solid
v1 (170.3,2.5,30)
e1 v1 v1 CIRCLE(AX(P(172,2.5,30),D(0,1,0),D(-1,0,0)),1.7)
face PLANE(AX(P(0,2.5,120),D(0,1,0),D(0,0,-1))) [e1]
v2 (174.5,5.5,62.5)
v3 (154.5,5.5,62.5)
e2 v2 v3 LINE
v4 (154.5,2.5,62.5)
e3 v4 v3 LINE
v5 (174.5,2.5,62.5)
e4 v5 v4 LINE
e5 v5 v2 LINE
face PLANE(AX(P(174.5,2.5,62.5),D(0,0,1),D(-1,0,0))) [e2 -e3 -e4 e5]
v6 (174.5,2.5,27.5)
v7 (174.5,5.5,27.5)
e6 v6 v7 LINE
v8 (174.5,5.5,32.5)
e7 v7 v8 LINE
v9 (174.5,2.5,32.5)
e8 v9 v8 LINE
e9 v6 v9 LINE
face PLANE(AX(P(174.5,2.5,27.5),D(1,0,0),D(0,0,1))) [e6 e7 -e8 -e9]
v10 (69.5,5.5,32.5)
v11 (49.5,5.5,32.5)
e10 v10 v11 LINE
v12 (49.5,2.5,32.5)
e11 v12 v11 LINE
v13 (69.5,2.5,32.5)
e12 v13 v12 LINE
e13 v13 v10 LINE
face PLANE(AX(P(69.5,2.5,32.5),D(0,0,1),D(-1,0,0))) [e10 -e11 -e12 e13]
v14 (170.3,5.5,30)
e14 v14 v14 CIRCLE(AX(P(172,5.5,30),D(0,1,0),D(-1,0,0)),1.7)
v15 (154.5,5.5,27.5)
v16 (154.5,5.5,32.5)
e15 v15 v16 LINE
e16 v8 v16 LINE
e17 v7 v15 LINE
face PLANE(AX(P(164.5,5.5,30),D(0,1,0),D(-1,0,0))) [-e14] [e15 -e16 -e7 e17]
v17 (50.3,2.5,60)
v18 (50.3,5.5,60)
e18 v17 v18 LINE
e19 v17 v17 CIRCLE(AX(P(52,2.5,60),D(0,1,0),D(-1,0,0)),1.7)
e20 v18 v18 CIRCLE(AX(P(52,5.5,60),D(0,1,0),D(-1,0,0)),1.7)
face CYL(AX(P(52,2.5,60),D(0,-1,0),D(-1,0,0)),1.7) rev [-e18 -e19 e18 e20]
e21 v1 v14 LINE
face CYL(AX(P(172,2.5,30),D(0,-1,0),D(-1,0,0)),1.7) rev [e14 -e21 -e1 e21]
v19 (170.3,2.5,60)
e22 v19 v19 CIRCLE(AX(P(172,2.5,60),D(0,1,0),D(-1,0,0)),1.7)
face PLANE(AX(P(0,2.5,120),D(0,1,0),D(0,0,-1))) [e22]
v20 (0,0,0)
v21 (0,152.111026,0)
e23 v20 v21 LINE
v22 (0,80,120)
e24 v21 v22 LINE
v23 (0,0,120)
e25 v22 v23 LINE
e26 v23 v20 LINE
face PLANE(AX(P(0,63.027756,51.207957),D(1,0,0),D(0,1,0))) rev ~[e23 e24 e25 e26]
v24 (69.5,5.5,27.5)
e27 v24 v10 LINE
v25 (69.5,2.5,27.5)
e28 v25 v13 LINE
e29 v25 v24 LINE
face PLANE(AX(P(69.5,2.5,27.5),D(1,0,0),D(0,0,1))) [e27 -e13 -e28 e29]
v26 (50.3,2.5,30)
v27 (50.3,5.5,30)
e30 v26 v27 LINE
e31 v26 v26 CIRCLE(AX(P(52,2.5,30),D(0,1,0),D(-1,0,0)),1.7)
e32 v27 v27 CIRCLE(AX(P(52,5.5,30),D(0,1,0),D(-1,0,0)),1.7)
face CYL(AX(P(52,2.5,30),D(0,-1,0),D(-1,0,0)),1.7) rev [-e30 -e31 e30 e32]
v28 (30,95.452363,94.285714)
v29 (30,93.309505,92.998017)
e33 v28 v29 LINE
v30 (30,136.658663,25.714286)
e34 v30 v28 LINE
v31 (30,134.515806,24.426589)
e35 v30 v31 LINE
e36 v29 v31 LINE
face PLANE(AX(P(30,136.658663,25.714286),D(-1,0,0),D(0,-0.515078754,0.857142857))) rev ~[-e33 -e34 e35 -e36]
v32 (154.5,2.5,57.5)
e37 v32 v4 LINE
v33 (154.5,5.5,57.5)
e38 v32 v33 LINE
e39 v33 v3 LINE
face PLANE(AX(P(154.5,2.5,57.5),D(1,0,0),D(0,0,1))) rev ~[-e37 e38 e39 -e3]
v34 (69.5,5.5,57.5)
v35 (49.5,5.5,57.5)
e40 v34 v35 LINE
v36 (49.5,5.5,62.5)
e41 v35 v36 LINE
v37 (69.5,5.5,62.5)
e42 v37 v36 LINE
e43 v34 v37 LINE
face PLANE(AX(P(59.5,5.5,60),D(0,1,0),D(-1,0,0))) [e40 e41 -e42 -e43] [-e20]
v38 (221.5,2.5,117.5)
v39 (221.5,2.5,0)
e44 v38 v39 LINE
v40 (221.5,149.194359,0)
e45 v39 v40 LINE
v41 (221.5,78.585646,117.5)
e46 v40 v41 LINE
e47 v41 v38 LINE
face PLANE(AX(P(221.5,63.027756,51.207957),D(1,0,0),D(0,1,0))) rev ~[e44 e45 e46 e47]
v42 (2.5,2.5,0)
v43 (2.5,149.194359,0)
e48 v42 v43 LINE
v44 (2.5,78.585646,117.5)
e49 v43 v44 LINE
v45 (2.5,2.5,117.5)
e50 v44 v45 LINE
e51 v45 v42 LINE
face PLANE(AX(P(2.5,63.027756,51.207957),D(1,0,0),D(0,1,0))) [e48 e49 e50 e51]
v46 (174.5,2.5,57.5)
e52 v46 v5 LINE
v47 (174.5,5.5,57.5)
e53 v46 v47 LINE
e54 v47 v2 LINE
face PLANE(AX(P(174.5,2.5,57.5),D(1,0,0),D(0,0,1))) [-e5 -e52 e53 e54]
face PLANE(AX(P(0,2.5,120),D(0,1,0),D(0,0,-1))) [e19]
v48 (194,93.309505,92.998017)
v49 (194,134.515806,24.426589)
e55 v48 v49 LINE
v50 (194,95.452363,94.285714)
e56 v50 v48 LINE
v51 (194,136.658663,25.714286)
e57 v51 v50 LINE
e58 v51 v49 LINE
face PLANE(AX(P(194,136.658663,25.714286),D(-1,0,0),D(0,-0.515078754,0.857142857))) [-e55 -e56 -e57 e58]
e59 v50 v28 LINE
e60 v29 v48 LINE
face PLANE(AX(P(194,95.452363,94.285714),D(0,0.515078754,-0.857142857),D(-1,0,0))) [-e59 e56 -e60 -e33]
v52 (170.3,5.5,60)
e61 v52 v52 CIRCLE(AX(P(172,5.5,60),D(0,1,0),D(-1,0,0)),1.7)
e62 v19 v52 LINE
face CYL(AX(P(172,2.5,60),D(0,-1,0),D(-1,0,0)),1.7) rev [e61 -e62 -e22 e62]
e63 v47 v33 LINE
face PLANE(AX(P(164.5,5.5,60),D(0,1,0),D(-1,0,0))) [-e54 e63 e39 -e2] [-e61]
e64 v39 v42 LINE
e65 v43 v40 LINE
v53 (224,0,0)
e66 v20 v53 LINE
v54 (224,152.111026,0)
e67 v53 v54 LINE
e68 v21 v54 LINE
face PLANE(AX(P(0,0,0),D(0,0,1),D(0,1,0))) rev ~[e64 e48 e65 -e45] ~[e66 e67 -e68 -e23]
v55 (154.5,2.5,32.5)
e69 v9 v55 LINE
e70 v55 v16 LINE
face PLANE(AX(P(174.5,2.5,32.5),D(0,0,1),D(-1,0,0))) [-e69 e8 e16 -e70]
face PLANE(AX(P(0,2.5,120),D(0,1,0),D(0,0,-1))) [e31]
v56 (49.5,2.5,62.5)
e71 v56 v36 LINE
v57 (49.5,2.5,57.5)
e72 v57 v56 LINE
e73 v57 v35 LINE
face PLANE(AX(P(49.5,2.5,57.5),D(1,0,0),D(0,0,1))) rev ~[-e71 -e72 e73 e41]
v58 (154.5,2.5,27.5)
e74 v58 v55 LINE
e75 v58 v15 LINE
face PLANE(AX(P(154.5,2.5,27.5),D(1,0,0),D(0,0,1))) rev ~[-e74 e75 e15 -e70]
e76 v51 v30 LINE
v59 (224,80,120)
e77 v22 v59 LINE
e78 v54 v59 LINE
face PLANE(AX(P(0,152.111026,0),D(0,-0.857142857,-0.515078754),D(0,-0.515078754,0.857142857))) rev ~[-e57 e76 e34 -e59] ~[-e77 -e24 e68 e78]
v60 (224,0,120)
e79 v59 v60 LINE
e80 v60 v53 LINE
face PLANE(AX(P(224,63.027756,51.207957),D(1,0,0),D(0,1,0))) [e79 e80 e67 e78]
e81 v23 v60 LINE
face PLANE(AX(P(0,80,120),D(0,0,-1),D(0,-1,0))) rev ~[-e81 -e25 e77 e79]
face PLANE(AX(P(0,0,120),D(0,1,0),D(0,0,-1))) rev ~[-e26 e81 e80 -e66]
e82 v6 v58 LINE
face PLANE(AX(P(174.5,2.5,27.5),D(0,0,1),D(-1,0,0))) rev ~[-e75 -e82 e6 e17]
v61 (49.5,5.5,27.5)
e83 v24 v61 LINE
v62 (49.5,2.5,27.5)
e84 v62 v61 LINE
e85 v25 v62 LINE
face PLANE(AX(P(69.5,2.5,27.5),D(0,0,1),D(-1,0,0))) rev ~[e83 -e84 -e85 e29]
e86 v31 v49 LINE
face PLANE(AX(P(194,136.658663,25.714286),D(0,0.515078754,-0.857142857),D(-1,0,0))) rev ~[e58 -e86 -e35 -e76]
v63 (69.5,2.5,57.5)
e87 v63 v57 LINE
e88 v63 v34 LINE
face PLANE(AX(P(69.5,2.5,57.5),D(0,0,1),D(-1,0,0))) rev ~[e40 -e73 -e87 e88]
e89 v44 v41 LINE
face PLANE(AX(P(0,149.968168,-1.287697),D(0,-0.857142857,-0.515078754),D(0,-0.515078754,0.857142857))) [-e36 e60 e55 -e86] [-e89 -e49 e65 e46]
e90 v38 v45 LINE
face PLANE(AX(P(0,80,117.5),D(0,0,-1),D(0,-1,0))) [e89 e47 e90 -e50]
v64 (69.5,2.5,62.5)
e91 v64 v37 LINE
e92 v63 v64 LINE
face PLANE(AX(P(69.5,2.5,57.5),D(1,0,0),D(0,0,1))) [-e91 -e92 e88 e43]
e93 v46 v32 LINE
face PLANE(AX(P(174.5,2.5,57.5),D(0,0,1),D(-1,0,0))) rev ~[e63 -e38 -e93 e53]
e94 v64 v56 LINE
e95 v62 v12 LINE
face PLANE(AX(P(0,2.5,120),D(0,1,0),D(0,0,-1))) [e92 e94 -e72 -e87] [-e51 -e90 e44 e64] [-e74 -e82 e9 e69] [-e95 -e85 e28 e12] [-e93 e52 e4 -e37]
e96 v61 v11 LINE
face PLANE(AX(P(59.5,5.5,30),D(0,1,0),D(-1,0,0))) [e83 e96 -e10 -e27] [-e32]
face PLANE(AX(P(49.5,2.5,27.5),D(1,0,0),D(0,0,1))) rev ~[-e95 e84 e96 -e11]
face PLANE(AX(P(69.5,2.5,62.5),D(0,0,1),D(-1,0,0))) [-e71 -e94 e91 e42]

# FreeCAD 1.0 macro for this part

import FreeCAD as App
import Part
import Sketcher

V = App.Vector
Q = App.Units.Quantity


def faces_at(feature, points):
    """Names of the faces that lie closest to the given points."""
    faces = feature.Shape.Faces
    near = lambda p: min(range(len(faces)), key=lambda i: faces[i].distToShape(Part.Vertex(*p))[0])
    return sorted({f"Face{near(p) + 1}" for p in points})


def add_polygon(sketch, points):
    """Adds a closed chain of lines whose ends are joined by coincident constraints."""
    first, n = sketch.GeometryCount, len(points)
    for a, b in zip(points, points[1:] + points[:1]):
        sketch.addGeometry(Part.LineSegment(App.Vector(*a, 0), App.Vector(*b, 0)), False)
    for i in range(n):
        sketch.addConstraint(Sketcher.Constraint("Coincident", first + i, 2, first + (i + 1) % n, 1))

doc = App.newDocument("Part")
body = doc.addObject("PartDesign::Body", "Body")

# Sketch on YZ plane
sketch1 = doc.addObject("Sketcher::SketchObject", "Sketch")
body.addObject(sketch1)
sketch1.AttachmentSupport = (doc.YZ_Plane, [""])
sketch1.MapMode = "FlatFace"
add_polygon(sketch1, [(0, 120), (0, 0), (152, 0), (80, 120)])  # lines 0-3
sketch1.addConstraint(Sketcher.Constraint("Vertical", 0))
sketch1.addConstraint(Sketcher.Constraint("Horizontal", 1))
sketch1.addConstraint(Sketcher.Constraint("Horizontal", 3))
sketch1.addConstraint(Sketcher.Constraint("Coincident", 0, 2, -1, 1))
sketch1.addConstraint(Sketcher.Constraint("DistanceX", 3, 2, 3, 1, Q("80 mm")))
sketch1.addConstraint(Sketcher.Constraint("DistanceY", 0, 2, 0, 1, Q("120 mm")))
sketch1.addConstraint(Sketcher.Constraint("Distance", 2, Q("140 mm")))
pad1 = doc.addObject("PartDesign::Pad", "Pad")
body.addObject(pad1)
pad1.Profile = sketch1
pad1.Length = 224
doc.recompute()

thickness = doc.addObject("PartDesign::Thickness", "Thickness")
body.addObject(thickness)
thickness.Base = (pad1, faces_at(pad1, [(112, 76.056, 0)]))
thickness.Value = 2.5
thickness.Reversed = True
thickness.Join = "Intersection"

# Sketch on an angled plane
sketch2 = doc.addObject("Sketcher::SketchObject", "Sketch001")
body.addObject(sketch2)
sketch2.Placement = App.Placement(V(0, 111.755039, 67.156421), App.Rotation(V(-1, 0, 0), V(0, -0.515078754, 0.857142857), V(0, 0.857142857, 0.515078754), "ZXY"))
add_polygon(sketch2, [(-194, 32), (-194, -48), (-30, -48), (-30, 32)])  # lines 0-3
sketch2.addConstraint(Sketcher.Constraint("Vertical", 0))
sketch2.addConstraint(Sketcher.Constraint("Horizontal", 1))
sketch2.addConstraint(Sketcher.Constraint("Vertical", 2))
sketch2.addConstraint(Sketcher.Constraint("Horizontal", 3))
sketch2.addConstraint(Sketcher.Constraint("DistanceX", 1, 1, 1, 2, Q("164 mm")))
sketch2.addConstraint(Sketcher.Constraint("DistanceY", 0, 2, 0, 1, Q("80 mm")))
sketch2.addConstraint(Sketcher.Constraint("DistanceX", 0, 2, -1, 1, Q("194 mm")))
sketch2.addConstraint(Sketcher.Constraint("DistanceY", 0, 2, -1, 1, Q("48.349157 mm")))
pocket1 = doc.addObject("PartDesign::Pocket", "Pocket")
body.addObject(pocket1)
pocket1.Profile = sketch2
pocket1.Length = 6

# Sketch on XZ plane
sketch3 = doc.addObject("Sketcher::SketchObject", "Sketch002")
body.addObject(sketch3)
sketch3.AttachmentSupport = (doc.XZ_Plane, [""])
sketch3.MapMode = "FlatFace"
sketch3.AttachmentOffset = App.Placement(V(0, 0, -2.5), App.Rotation())
add_polygon(sketch3, [(174.5, 32.5), (174.5, 27.5), (154.5, 27.5), (154.5, 32.5)])  # lines 0-3
sketch3.addGeometry(Part.Circle(V(172, 30, 0), V(0, 0, 1), 1.7), False)  # 4
add_polygon(sketch3, [(174.5, 62.5), (174.5, 57.5), (154.5, 57.5), (154.5, 62.5)])  # lines 5-8
sketch3.addGeometry(Part.Circle(V(172, 60, 0), V(0, 0, 1), 1.7), False)  # 9
add_polygon(sketch3, [(69.5, 32.5), (69.5, 27.5), (49.5, 27.5), (49.5, 32.5)])  # lines 10-13
sketch3.addGeometry(Part.Circle(V(52, 30, 0), V(0, 0, 1), 1.7), False)  # 14
add_polygon(sketch3, [(69.5, 62.5), (69.5, 57.5), (49.5, 57.5), (49.5, 62.5)])  # lines 15-18
sketch3.addGeometry(Part.Circle(V(52, 60, 0), V(0, 0, 1), 1.7), False)  # 19
sketch3.addConstraint(Sketcher.Constraint("Vertical", 0))
sketch3.addConstraint(Sketcher.Constraint("Horizontal", 1))
sketch3.addConstraint(Sketcher.Constraint("Vertical", 2))
sketch3.addConstraint(Sketcher.Constraint("Horizontal", 3))
sketch3.addConstraint(Sketcher.Constraint("Vertical", 5))
sketch3.addConstraint(Sketcher.Constraint("Horizontal", 6))
sketch3.addConstraint(Sketcher.Constraint("Vertical", 7))
sketch3.addConstraint(Sketcher.Constraint("Horizontal", 8))
sketch3.addConstraint(Sketcher.Constraint("Vertical", 10))
sketch3.addConstraint(Sketcher.Constraint("Horizontal", 11))
sketch3.addConstraint(Sketcher.Constraint("Vertical", 12))
sketch3.addConstraint(Sketcher.Constraint("Horizontal", 13))
sketch3.addConstraint(Sketcher.Constraint("Vertical", 15))
sketch3.addConstraint(Sketcher.Constraint("Horizontal", 16))
sketch3.addConstraint(Sketcher.Constraint("Vertical", 17))
sketch3.addConstraint(Sketcher.Constraint("Horizontal", 18))
sketch3.addConstraint(Sketcher.Constraint("Equal", 4, 9))
sketch3.addConstraint(Sketcher.Constraint("Equal", 9, 14))
sketch3.addConstraint(Sketcher.Constraint("Equal", 14, 19))
sketch3.addConstraint(Sketcher.Constraint("Horizontal", 4, 3, 14, 3))
sketch3.addConstraint(Sketcher.Constraint("Horizontal", 9, 3, 19, 3))
sketch3.addConstraint(Sketcher.Constraint("Horizontal", 1, 2, 10, 2))
sketch3.addConstraint(Sketcher.Constraint("Horizontal", 3, 2, 12, 2))
sketch3.addConstraint(Sketcher.Constraint("Horizontal", 6, 2, 15, 2))
sketch3.addConstraint(Sketcher.Constraint("Horizontal", 8, 2, 17, 2))
sketch3.addConstraint(Sketcher.Constraint("Vertical", 4, 3, 9, 3))
sketch3.addConstraint(Sketcher.Constraint("Vertical", 14, 3, 19, 3))
sketch3.addConstraint(Sketcher.Constraint("Vertical", 3, 2, 5, 2))
sketch3.addConstraint(Sketcher.Constraint("Vertical", 2, 2, 6, 2))
sketch3.addConstraint(Sketcher.Constraint("Vertical", 13, 2, 15, 2))
sketch3.addConstraint(Sketcher.Constraint("Vertical", 12, 2, 16, 2))
sketch3.addConstraint(Sketcher.Constraint("Equal", 8, 11))
sketch3.addConstraint(Sketcher.Constraint("Equal", 2, 5))
sketch3.addConstraint(Sketcher.Constraint("Diameter", 4, Q("3.4 mm")))
sketch3.addConstraint(Sketcher.Constraint("DistanceX", 1, 2, 1, 1, Q("20 mm")))
sketch3.addConstraint(Sketcher.Constraint("DistanceY", 0, 2, 0, 1, Q("5 mm")))
sketch3.addConstraint(Sketcher.Constraint("DistanceX", -1, 1, 4, 3, Q("172 mm")))
sketch3.addConstraint(Sketcher.Constraint("DistanceY", -1, 1, 4, 3, Q("30 mm")))
sketch3.addConstraint(Sketcher.Constraint("DistanceY", -1, 1, 9, 3, Q("60 mm")))
sketch3.addConstraint(Sketcher.Constraint("DistanceX", -1, 1, 14, 3, Q("52 mm")))
sketch3.addConstraint(Sketcher.Constraint("DistanceY", 3, 2, 5, 2, Q("25 mm")))
sketch3.addConstraint(Sketcher.Constraint("DistanceX", 10, 2, 1, 2, Q("85 mm")))
sketch3.addConstraint(Sketcher.Constraint("DistanceX", -1, 1, 0, 2, Q("174.5 mm")))
sketch3.addConstraint(Sketcher.Constraint("DistanceY", -1, 1, 0, 2, Q("27.5 mm")))
pad2 = doc.addObject("PartDesign::Pad", "Pad001")
body.addObject(pad2)
pad2.Profile = sketch3
pad2.Length = 3
pad2.Reversed = True

doc.recompute()
